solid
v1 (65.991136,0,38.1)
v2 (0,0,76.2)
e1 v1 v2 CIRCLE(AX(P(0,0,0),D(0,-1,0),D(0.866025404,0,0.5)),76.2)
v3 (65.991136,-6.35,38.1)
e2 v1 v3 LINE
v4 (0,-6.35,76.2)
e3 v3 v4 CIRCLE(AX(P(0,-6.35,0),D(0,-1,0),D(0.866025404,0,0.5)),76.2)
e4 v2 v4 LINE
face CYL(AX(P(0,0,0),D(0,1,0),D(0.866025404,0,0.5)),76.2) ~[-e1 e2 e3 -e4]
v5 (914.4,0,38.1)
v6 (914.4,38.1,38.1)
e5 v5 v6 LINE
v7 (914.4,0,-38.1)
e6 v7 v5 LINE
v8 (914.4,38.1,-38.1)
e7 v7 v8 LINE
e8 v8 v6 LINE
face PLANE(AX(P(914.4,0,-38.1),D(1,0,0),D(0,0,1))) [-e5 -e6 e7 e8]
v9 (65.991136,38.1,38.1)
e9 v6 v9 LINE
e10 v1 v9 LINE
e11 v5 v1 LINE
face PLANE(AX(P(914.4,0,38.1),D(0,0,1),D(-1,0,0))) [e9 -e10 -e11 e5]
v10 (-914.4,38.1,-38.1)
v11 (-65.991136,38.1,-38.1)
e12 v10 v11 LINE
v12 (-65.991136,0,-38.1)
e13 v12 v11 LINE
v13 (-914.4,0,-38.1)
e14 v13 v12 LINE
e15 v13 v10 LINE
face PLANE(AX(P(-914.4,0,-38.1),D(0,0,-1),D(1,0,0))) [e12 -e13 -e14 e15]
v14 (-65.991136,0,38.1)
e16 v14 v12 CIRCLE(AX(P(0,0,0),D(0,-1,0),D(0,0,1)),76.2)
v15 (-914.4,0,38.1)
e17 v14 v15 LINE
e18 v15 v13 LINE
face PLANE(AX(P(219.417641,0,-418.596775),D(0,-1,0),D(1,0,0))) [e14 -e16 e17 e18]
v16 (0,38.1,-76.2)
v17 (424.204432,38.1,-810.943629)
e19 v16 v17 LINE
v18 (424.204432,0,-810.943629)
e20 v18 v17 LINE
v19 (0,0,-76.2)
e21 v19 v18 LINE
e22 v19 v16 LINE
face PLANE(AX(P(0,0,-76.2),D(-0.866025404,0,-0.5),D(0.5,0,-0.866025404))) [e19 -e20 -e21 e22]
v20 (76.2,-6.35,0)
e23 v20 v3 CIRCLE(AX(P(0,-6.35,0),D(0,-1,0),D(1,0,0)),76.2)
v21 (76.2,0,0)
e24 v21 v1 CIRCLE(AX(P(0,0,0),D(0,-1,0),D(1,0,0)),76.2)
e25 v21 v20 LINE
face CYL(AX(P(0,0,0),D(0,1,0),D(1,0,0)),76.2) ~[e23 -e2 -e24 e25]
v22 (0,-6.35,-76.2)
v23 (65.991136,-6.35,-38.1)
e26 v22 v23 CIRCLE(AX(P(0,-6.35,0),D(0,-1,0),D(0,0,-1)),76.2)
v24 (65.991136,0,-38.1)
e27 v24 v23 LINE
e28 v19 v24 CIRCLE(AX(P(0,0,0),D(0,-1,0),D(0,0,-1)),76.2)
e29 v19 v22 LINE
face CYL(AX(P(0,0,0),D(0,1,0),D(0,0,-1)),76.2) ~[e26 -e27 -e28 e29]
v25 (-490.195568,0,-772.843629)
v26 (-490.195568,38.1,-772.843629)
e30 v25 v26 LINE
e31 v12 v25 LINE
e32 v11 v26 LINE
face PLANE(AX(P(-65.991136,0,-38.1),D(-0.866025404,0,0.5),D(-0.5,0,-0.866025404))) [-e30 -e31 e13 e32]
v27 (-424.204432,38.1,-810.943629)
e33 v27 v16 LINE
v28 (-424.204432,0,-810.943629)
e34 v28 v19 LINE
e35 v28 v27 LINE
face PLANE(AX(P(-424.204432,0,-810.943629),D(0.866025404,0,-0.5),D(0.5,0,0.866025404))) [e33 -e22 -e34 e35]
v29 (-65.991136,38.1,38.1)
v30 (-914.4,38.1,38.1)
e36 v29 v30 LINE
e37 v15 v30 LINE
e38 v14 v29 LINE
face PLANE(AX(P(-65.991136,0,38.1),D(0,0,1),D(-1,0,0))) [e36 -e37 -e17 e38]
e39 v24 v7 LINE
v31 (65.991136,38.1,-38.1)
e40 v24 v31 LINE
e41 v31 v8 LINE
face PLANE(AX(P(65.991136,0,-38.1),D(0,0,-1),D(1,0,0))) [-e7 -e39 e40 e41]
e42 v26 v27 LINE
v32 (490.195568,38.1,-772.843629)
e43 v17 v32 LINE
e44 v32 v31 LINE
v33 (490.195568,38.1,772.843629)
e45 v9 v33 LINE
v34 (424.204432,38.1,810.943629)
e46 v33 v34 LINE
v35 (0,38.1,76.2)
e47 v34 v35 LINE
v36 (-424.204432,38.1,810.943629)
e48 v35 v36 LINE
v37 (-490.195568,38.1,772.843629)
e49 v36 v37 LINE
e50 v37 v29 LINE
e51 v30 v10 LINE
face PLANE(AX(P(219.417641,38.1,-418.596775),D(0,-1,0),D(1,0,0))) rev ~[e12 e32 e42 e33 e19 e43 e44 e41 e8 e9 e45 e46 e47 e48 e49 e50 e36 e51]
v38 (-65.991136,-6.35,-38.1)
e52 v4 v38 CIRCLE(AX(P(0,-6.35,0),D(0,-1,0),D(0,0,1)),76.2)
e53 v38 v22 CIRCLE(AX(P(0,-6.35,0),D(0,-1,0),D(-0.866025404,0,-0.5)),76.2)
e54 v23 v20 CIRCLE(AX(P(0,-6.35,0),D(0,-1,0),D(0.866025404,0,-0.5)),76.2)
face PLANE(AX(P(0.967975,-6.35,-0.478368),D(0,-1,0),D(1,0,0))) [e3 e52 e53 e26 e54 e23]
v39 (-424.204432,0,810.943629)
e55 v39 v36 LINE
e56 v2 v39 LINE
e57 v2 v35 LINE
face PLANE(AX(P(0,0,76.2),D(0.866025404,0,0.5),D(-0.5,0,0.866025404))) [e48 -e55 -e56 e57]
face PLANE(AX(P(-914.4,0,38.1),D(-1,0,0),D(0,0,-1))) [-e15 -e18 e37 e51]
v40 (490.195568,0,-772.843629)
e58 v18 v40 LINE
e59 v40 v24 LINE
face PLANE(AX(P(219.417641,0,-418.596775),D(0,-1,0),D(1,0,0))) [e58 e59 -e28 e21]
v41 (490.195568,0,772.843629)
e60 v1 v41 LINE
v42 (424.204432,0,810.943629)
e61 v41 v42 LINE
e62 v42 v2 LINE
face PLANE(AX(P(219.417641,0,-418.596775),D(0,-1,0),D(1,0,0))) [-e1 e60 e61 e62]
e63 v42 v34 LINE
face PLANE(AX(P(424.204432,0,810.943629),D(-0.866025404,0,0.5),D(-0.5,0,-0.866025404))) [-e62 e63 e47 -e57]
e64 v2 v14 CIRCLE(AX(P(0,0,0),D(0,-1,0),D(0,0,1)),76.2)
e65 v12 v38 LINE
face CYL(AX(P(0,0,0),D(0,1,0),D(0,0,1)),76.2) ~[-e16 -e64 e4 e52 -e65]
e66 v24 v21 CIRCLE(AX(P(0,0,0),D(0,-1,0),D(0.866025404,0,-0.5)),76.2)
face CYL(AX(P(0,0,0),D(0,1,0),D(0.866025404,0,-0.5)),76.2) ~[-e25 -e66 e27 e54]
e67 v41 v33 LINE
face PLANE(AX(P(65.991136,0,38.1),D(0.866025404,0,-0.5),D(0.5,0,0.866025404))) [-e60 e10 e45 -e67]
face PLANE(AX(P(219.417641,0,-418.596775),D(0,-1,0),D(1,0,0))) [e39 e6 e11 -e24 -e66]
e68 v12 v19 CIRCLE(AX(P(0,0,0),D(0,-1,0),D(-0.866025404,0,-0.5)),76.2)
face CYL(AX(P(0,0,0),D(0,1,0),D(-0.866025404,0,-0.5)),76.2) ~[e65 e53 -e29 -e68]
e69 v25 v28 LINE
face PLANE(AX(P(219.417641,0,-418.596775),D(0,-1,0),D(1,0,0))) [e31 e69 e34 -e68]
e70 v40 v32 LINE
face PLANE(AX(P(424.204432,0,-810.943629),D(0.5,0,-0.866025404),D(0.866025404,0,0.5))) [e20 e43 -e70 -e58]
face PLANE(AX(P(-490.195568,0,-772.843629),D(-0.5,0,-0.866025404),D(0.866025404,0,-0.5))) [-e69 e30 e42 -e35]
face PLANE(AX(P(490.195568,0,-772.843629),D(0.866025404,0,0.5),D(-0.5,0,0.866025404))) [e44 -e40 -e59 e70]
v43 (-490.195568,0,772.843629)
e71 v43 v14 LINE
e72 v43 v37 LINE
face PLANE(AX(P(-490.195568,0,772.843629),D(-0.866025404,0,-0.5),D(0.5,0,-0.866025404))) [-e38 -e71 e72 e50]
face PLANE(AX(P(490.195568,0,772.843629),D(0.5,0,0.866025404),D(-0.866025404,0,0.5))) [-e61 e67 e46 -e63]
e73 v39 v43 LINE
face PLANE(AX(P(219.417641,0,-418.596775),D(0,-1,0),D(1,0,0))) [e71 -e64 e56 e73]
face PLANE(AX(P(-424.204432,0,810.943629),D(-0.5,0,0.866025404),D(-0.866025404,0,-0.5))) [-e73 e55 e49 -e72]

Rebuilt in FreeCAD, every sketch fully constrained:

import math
import FreeCAD as App
import Part
import Sketcher

V = App.Vector
Q = App.Units.Quantity

doc = App.newDocument("Part")
body = doc.addObject("PartDesign::Body", "Body")

# Sketch on XZ plane
sketch1 = doc.addObject("Sketcher::SketchObject", "Sketch")
body.addObject(sketch1)
sketch1.AttachmentSupport = (doc.XZ_Plane, [""])
sketch1.MapMode = "FlatFace"
sketch1.addGeometry(Part.LineSegment(V(-490.195568, -772.843629, 0), V(-424.204432, -810.943629, 0)), False)
sketch1.addGeometry(Part.LineSegment(V(-424.204432, -810.943629, 0), V(0, -76.2, 0)), False)
sketch1.addGeometry(Part.LineSegment(V(0, -76.2, 0), V(424.204432, -810.943629, 0)), False)
sketch1.addGeometry(Part.LineSegment(V(424.204432, -810.943629, 0), V(490.195568, -772.843629, 0)), False)
sketch1.addGeometry(Part.LineSegment(V(490.195568, -772.843629, 0), V(65.991136, -38.1, 0)), False)
sketch1.addGeometry(Part.LineSegment(V(65.991136, -38.1, 0), V(914.4, -38.1, 0)), False)
sketch1.addGeometry(Part.LineSegment(V(914.4, -38.1, 0), V(914.4, 38.1, 0)), False)
sketch1.addGeometry(Part.LineSegment(V(914.4, 38.1, 0), V(65.991136, 38.1, 0)), False)
sketch1.addGeometry(Part.LineSegment(V(65.991136, 38.1, 0), V(490.195568, 772.843629, 0)), False)
sketch1.addGeometry(Part.LineSegment(V(490.195568, 772.843629, 0), V(424.204432, 810.943629, 0)), False)
sketch1.addGeometry(Part.LineSegment(V(424.204432, 810.943629, 0), V(0, 76.2, 0)), False)
sketch1.addGeometry(Part.LineSegment(V(0, 76.2, 0), V(-424.204432, 810.943629, 0)), False)
sketch1.addGeometry(Part.LineSegment(V(-424.204432, 810.943629, 0), V(-490.195568, 772.843629, 0)), False)
sketch1.addGeometry(Part.LineSegment(V(-490.195568, 772.843629, 0), V(-65.991136, 38.1, 0)), False)
sketch1.addGeometry(Part.LineSegment(V(-65.991136, 38.1, 0), V(-914.4, 38.1, 0)), False)
sketch1.addGeometry(Part.LineSegment(V(-914.4, 38.1, 0), V(-914.4, -38.1, 0)), False)
sketch1.addGeometry(Part.LineSegment(V(-914.4, -38.1, 0), V(-65.991136, -38.1, 0)), False)
sketch1.addGeometry(Part.LineSegment(V(-65.991136, -38.1, 0), V(-490.195568, -772.843629, 0)), False)
sketch1.addConstraint(Sketcher.Constraint("Coincident", 0, 2, 1, 1))
sketch1.addConstraint(Sketcher.Constraint("Coincident", 1, 2, 2, 1))
sketch1.addConstraint(Sketcher.Constraint("Coincident", 2, 2, 3, 1))
sketch1.addConstraint(Sketcher.Constraint("Coincident", 3, 2, 4, 1))
sketch1.addConstraint(Sketcher.Constraint("Coincident", 4, 2, 5, 1))
sketch1.addConstraint(Sketcher.Constraint("Coincident", 5, 2, 6, 1))
sketch1.addConstraint(Sketcher.Constraint("Coincident", 6, 2, 7, 1))
sketch1.addConstraint(Sketcher.Constraint("Coincident", 7, 2, 8, 1))
sketch1.addConstraint(Sketcher.Constraint("Coincident", 8, 2, 9, 1))
sketch1.addConstraint(Sketcher.Constraint("Coincident", 9, 2, 10, 1))
sketch1.addConstraint(Sketcher.Constraint("Coincident", 10, 2, 11, 1))
sketch1.addConstraint(Sketcher.Constraint("Coincident", 11, 2, 12, 1))
sketch1.addConstraint(Sketcher.Constraint("Coincident", 12, 2, 13, 1))
sketch1.addConstraint(Sketcher.Constraint("Coincident", 13, 2, 14, 1))
sketch1.addConstraint(Sketcher.Constraint("Coincident", 14, 2, 15, 1))
sketch1.addConstraint(Sketcher.Constraint("Coincident", 15, 2, 16, 1))
sketch1.addConstraint(Sketcher.Constraint("Coincident", 16, 2, 17, 1))
sketch1.addConstraint(Sketcher.Constraint("Coincident", 17, 2, 0, 1))
sketch1.addConstraint(Sketcher.Constraint("Horizontal", 5))
sketch1.addConstraint(Sketcher.Constraint("Vertical", 6))
sketch1.addConstraint(Sketcher.Constraint("Horizontal", 7))
sketch1.addConstraint(Sketcher.Constraint("Horizontal", 14))
sketch1.addConstraint(Sketcher.Constraint("Vertical", 15))
sketch1.addConstraint(Sketcher.Constraint("Horizontal", 16))
sketch1.addConstraint(Sketcher.Constraint("Symmetric", 0, 2, 9, 2, -1, 1))
sketch1.addConstraint(Sketcher.Constraint("Symmetric", 1, 2, 10, 2, -1, 1))
sketch1.addConstraint(Sketcher.Constraint("Symmetric", 2, 2, 11, 2, -1, 1))
sketch1.addConstraint(Sketcher.Constraint("Symmetric", 3, 2, 12, 2, -1, 1))
sketch1.addConstraint(Sketcher.Constraint("Symmetric", 4, 2, 13, 2, -1, 1))
sketch1.addConstraint(Sketcher.Constraint("Symmetric", 6, 2, 15, 2, -1, 1))
sketch1.addConstraint(Sketcher.Constraint("Symmetric", 8, 2, 17, 2, -1, 1))
sketch1.addConstraint(Sketcher.Constraint("Symmetric", 0, 2, 2, 2, -2))
sketch1.addConstraint(Sketcher.Constraint("Symmetric", 8, 2, 12, 2, -2))
sketch1.addConstraint(Sketcher.Constraint("Symmetric", 7, 2, 13, 2, -2))
sketch1.addConstraint(Sketcher.Constraint("PointOnObject", 1, 2, -2))
sketch1.addConstraint(Sketcher.Constraint("Perpendicular", 0, 1))
sketch1.addConstraint(Sketcher.Constraint("Perpendicular", 3, 4))
sketch1.addConstraint(Sketcher.Constraint("Parallel", 10, 17))
sketch1.addConstraint(Sketcher.Constraint("Equal", 2, 4))
sketch1.addConstraint(Sketcher.Constraint("DistanceY", 6, 1, 6, 2, Q("3 in")))
sketch1.addConstraint(Sketcher.Constraint("Distance", 0, Q("3 in")))
sketch1.addConstraint(Sketcher.Constraint("DistanceY", 1, 2, -1, 1, Q("3 in")))
sketch1.addConstraint(Sketcher.Constraint("DistanceX", -1, 1, 5, 2, Q("36 in")))
sketch1.addConstraint(Sketcher.Constraint("DistanceX", 0, 2, 3, 2, Q("36 in")))
pad1 = doc.addObject("PartDesign::Pad", "Pad")
body.addObject(pad1)
pad1.Profile = sketch1
pad1.Length = Q("1.5 in")
pad1.Reversed = True

# Sketch on XZ plane
sketch2 = doc.addObject("Sketcher::SketchObject", "Sketch001")
body.addObject(sketch2)
sketch2.AttachmentSupport = (doc.XZ_Plane, [""])
sketch2.MapMode = "FlatFace"
sketch2.addGeometry(Part.ArcOfCircle(Part.Circle(V(0, 0, 0), V(0, 0, 1), 76.2), math.radians(-30), math.radians(0)), False)
sketch2.addGeometry(Part.ArcOfCircle(Part.Circle(V(0, 0, 0), V(0, 0, 1), 76.2), math.radians(0), math.radians(30)), False)
sketch2.addGeometry(Part.ArcOfCircle(Part.Circle(V(0, 0, 0), V(0, 0, 1), 76.2), math.radians(30), math.radians(90)), False)
sketch2.addGeometry(Part.ArcOfCircle(Part.Circle(V(0, 0, 0), V(0, 0, 1), 76.2), math.radians(90), math.radians(210)), False)
sketch2.addGeometry(Part.ArcOfCircle(Part.Circle(V(0, 0, 0), V(0, 0, 1), 76.2), math.radians(-150), math.radians(-90)), False)
sketch2.addGeometry(Part.ArcOfCircle(Part.Circle(V(0, 0, 0), V(0, 0, 1), 76.2), math.radians(-90), math.radians(-30)), False)
sketch2.addConstraint(Sketcher.Constraint("Tangent", 0, 2, 1, 1))
sketch2.addConstraint(Sketcher.Constraint("Tangent", 1, 2, 2, 1))
sketch2.addConstraint(Sketcher.Constraint("Tangent", 2, 2, 3, 1))
sketch2.addConstraint(Sketcher.Constraint("Tangent", 3, 2, 4, 1))
sketch2.addConstraint(Sketcher.Constraint("Tangent", 4, 2, 5, 1))
sketch2.addConstraint(Sketcher.Constraint("Tangent", 5, 2, 0, 1))
sketch2.addConstraint(Sketcher.Constraint("Coincident", 0, 3, -1, 1))
sketch2.addConstraint(Sketcher.Constraint("Coincident", 2, 3, -1, 1))
sketch2.addConstraint(Sketcher.Constraint("Equal", 2, 3))
sketch2.addConstraint(Sketcher.Constraint("PointOnObject", 0, 2, -1))
sketch2.addConstraint(Sketcher.Constraint("PointOnObject", 2, 2, -2))
sketch2.addConstraint(Sketcher.Constraint("PointOnObject", 4, 2, -2))
sketch2.addConstraint(Sketcher.Constraint("Horizontal", 3, 2, 5, 2))
sketch2.addConstraint(Sketcher.Constraint("Vertical", 1, 2, 5, 2))
sketch2.addConstraint(Sketcher.Constraint("Radius", 0, Q("3 in")))
sketch2.addConstraint(Sketcher.Constraint("DistanceY", -1, 1, 1, 2, Q("1.5 in")))
pad2 = doc.addObject("PartDesign::Pad", "Pad001")
body.addObject(pad2)
pad2.Profile = sketch2
pad2.Length = Q("0.25 in")

doc.recompute()
